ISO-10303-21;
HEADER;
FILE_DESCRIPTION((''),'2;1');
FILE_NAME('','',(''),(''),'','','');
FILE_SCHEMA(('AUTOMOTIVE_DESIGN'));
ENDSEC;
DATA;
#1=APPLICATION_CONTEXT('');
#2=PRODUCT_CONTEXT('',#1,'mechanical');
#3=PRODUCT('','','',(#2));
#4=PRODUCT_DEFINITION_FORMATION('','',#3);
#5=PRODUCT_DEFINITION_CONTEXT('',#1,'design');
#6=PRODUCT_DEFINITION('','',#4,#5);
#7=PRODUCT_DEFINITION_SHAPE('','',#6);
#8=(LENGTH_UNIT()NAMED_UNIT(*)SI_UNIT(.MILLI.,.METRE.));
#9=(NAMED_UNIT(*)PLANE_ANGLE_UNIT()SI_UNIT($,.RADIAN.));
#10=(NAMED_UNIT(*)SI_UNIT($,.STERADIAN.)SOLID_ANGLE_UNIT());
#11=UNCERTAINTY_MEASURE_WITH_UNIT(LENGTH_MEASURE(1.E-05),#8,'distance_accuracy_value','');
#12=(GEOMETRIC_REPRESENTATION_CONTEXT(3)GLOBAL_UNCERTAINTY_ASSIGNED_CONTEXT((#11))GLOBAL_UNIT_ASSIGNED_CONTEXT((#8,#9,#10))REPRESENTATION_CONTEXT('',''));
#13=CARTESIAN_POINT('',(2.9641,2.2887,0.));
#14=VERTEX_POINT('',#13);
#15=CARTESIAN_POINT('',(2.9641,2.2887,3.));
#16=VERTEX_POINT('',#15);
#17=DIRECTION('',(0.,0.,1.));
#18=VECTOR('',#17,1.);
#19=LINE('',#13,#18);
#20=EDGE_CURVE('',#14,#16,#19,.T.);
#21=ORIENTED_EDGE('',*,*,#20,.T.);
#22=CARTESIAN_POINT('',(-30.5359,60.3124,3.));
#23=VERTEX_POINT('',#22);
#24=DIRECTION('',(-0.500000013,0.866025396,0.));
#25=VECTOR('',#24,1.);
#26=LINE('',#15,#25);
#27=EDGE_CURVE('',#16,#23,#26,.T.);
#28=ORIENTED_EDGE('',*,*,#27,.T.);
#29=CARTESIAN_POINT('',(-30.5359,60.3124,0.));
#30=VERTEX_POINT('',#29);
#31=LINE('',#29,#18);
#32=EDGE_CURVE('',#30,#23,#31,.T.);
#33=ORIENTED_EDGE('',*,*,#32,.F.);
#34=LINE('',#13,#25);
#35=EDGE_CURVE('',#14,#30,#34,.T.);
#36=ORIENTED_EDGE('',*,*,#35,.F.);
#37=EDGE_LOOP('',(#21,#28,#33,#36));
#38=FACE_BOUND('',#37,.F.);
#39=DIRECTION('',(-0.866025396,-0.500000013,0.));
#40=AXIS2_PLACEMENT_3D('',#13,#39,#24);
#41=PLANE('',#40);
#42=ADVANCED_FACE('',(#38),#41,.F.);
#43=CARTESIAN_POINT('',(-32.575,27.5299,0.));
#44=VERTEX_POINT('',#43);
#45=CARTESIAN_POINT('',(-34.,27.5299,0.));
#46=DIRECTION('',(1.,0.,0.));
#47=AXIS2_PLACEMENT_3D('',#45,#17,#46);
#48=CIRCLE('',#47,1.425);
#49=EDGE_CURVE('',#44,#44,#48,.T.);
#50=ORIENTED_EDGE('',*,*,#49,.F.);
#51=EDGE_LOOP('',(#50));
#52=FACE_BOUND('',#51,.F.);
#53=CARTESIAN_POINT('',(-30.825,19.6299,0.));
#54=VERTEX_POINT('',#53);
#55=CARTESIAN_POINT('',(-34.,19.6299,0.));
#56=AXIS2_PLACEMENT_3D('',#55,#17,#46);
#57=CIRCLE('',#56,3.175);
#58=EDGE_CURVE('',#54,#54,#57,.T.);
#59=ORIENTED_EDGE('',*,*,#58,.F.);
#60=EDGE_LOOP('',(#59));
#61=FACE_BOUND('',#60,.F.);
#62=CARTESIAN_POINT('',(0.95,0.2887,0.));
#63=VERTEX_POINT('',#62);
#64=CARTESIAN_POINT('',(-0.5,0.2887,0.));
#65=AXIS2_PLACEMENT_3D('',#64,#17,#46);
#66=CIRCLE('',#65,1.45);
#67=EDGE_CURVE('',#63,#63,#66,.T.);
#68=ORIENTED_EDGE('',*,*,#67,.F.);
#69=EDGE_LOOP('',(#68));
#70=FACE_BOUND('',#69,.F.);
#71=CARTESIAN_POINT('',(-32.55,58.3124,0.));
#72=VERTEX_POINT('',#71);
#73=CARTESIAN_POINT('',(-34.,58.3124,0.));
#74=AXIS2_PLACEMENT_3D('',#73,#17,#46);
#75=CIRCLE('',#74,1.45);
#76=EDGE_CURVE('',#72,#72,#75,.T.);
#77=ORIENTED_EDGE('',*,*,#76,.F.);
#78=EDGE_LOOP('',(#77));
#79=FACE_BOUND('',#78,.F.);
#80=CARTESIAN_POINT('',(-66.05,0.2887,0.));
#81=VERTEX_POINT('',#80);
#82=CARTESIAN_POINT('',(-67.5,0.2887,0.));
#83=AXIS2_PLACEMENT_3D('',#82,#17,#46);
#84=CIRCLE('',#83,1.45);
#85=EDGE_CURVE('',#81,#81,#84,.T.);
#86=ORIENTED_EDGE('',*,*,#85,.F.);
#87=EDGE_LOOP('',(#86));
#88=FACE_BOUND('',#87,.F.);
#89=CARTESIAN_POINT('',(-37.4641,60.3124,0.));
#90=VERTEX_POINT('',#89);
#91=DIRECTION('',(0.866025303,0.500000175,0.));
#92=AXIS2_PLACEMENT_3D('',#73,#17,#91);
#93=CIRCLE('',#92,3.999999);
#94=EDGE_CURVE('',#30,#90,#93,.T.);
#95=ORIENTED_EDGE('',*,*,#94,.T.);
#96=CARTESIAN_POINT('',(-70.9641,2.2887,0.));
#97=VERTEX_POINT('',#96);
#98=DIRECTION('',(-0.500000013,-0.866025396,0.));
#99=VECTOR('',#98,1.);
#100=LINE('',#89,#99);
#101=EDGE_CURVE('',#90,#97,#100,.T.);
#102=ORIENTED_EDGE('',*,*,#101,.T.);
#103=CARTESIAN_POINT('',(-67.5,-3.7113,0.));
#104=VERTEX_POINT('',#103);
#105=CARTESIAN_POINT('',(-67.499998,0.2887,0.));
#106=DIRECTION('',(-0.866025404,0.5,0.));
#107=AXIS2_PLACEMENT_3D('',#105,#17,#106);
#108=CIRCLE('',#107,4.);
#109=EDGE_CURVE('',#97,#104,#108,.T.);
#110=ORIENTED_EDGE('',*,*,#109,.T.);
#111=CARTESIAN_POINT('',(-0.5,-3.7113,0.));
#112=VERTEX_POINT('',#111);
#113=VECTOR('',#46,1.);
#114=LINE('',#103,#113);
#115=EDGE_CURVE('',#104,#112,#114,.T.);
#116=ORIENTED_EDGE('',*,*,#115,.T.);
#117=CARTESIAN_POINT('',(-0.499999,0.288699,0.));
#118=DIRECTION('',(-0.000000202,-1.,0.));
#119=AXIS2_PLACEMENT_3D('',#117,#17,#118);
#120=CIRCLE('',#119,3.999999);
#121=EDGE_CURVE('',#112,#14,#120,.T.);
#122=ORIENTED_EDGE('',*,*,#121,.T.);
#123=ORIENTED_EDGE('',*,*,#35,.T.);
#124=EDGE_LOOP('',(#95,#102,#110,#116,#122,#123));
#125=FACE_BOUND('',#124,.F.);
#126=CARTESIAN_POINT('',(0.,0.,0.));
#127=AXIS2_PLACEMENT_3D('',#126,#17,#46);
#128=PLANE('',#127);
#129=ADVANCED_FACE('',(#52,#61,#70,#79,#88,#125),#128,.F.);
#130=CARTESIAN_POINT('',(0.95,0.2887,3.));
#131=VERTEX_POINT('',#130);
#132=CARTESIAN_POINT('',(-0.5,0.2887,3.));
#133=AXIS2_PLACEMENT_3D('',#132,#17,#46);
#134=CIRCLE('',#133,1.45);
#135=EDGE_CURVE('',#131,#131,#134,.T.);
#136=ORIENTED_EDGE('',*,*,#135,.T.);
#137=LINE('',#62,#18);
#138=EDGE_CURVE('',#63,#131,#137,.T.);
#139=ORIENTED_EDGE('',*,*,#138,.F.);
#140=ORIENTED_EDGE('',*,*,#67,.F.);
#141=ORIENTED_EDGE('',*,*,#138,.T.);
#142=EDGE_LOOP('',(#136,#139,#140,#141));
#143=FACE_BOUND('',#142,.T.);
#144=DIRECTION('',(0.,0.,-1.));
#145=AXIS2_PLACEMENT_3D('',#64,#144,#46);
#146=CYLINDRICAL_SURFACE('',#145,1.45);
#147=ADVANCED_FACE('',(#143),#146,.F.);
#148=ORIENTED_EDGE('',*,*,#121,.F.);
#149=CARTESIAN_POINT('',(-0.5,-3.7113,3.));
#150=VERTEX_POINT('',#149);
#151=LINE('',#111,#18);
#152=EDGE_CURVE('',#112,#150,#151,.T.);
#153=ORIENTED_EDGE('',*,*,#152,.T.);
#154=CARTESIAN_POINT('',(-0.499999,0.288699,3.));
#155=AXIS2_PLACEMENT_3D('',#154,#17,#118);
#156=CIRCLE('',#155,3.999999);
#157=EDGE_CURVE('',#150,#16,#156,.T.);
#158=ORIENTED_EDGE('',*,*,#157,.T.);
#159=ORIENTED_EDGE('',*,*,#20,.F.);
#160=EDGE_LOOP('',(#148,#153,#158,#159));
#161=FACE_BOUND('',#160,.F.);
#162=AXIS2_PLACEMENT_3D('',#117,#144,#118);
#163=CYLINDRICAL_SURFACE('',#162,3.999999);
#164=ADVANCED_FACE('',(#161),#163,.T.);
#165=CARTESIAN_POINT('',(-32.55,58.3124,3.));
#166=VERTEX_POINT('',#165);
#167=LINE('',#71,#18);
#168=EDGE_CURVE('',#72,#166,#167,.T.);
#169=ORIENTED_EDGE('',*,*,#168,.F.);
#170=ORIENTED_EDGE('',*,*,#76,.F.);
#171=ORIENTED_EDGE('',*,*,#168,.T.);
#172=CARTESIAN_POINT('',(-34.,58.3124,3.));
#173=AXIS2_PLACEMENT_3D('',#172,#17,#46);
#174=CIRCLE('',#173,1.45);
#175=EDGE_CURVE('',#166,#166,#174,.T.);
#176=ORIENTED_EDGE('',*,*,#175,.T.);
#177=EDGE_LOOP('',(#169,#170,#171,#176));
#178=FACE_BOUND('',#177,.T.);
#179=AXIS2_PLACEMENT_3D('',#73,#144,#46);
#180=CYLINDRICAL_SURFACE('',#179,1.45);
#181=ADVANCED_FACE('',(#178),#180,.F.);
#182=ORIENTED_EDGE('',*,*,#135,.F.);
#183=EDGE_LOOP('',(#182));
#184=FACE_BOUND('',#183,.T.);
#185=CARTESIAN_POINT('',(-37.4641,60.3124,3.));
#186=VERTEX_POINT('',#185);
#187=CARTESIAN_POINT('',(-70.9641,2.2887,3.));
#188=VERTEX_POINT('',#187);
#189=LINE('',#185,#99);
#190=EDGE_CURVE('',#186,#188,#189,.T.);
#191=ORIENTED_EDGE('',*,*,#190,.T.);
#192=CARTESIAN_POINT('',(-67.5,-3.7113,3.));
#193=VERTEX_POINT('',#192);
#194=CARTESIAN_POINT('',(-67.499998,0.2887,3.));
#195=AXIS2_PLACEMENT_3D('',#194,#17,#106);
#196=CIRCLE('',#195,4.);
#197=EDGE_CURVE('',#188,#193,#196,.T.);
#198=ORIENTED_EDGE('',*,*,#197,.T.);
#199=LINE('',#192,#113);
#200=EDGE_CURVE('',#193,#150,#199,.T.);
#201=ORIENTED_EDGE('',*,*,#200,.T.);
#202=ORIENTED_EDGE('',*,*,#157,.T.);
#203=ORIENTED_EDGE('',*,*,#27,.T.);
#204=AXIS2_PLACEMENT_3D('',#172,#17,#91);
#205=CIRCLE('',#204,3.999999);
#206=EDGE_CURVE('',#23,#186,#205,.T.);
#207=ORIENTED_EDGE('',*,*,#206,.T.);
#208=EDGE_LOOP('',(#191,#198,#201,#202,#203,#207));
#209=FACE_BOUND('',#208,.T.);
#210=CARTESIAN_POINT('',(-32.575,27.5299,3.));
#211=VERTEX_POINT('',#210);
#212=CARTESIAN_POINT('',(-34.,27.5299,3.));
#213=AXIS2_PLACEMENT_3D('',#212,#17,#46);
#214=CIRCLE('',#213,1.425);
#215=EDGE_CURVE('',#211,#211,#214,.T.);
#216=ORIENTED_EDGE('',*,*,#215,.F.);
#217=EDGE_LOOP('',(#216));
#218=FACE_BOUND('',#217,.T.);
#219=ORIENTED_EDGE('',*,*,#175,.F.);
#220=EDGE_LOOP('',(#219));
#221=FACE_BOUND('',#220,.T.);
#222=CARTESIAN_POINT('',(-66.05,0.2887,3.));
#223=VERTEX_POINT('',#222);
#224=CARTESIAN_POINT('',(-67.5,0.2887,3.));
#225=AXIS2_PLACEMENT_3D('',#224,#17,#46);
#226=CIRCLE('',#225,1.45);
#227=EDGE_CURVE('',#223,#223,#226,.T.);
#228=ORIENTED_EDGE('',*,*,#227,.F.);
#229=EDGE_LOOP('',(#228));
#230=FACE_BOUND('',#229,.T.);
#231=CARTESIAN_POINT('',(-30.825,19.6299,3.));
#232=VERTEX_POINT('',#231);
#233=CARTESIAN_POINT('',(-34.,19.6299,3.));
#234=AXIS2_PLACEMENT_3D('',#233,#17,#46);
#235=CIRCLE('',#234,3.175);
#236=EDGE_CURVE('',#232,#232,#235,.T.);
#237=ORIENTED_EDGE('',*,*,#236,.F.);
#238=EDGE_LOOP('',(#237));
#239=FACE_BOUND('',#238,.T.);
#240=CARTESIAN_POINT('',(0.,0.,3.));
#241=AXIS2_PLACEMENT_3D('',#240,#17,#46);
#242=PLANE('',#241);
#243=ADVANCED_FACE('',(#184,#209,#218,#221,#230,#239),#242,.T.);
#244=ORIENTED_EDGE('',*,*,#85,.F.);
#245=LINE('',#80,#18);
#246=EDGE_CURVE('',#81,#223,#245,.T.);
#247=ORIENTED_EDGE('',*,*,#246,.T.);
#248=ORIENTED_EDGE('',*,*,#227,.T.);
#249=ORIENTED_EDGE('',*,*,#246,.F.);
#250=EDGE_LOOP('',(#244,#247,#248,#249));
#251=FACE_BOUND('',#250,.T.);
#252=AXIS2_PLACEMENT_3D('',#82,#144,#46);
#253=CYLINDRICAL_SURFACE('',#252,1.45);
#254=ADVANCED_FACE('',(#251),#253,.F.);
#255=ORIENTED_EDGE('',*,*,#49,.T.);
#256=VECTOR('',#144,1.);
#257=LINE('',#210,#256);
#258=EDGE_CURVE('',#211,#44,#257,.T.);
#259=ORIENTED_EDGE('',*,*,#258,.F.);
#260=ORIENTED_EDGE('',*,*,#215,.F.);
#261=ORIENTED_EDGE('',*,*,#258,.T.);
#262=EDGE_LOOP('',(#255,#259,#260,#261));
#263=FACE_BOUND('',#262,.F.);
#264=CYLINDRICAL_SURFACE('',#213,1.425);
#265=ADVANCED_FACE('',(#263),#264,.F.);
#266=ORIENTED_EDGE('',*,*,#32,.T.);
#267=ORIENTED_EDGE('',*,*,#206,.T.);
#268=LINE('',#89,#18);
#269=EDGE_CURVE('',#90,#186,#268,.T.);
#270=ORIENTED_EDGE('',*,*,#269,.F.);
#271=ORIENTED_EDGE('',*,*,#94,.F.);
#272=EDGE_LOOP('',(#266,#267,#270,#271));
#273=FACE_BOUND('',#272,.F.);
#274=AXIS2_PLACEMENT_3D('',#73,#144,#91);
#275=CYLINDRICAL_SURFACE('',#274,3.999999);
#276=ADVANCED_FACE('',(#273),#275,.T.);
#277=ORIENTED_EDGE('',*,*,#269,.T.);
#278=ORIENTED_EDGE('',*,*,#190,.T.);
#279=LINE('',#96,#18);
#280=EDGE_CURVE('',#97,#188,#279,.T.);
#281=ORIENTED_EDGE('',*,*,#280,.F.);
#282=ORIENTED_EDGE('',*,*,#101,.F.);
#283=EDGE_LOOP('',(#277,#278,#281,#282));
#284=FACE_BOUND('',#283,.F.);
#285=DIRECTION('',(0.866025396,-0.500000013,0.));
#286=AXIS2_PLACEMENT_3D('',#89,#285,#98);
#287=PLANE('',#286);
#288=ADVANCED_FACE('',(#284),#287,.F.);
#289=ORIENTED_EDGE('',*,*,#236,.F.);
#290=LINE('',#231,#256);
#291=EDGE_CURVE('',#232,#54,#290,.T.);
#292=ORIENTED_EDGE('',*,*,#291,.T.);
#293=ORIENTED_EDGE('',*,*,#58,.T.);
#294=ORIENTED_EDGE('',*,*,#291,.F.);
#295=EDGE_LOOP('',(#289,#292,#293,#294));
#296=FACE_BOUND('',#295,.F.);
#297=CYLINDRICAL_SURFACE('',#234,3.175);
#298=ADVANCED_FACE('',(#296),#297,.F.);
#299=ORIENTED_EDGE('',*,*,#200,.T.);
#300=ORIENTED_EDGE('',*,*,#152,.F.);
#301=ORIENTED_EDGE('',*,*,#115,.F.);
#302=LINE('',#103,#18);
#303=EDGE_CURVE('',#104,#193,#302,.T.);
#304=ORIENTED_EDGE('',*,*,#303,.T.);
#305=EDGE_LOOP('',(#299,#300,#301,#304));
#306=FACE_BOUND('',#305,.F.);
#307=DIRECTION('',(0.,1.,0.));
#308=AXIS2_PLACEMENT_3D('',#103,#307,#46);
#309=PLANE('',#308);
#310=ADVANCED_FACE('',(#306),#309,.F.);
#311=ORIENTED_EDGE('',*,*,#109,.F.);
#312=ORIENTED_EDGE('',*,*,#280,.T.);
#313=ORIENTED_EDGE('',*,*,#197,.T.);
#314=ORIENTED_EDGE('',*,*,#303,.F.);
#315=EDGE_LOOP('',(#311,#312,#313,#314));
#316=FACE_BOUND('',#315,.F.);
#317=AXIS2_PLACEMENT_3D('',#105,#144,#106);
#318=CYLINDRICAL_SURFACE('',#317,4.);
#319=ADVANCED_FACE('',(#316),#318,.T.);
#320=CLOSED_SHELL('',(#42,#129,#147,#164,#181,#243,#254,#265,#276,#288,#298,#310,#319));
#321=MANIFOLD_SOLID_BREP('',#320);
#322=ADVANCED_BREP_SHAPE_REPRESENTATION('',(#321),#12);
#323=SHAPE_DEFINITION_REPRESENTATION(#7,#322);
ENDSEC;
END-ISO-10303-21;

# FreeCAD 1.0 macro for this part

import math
import FreeCAD as App
import Part
import Sketcher
Q = App.Units.Quantity

doc = App.newDocument("Part")
body = doc.addObject("PartDesign::Body", "Body")

# Sketch on XY plane
sketch1 = body.newObject("Sketcher::SketchObject", "Sketch")
sketch1.AttachmentSupport = (doc.getObject("XY_Plane"), [""])
sketch1.MapMode = "FlatFace"
sketch1.addGeometry([
    Part.ArcOfCircle(Part.Circle(App.Vector(-0.5, 0.3, 0), App.Vector(0, 0, 1), 4), math.radians(-90), math.radians(30)),  # 0
    Part.LineSegment(App.Vector(3, 2.3, 0), App.Vector(-30.5, 60.3, 0)),  # 1
    Part.ArcOfCircle(Part.Circle(App.Vector(-34, 58.3, 0), App.Vector(0, 0, 1), 4), math.radians(30), math.radians(150)),  # 2
    Part.LineSegment(App.Vector(-37.5, 60.3, 0), App.Vector(-71, 2.3, 0)),  # 3
    Part.ArcOfCircle(Part.Circle(App.Vector(-67.5, 0.3, 0), App.Vector(0, 0, 1), 4), math.radians(150), math.radians(270)),  # 4
    Part.LineSegment(App.Vector(-67.5, -3.7, 0), App.Vector(-0.5, -3.7, 0)),  # 5
    Part.Circle(App.Vector(-67.5, 0.3, 0), App.Vector(0, 0, 1), 1.4),  # 6
    Part.Circle(App.Vector(-0.5, 0.3, 0), App.Vector(0, 0, 1), 1.4),  # 7
    Part.Circle(App.Vector(-34, 58.3, 0), App.Vector(0, 0, 1), 1.4),  # 8
], False)
sketch1.addConstraint([
    Sketcher.Constraint("Tangent", 0, 2, 1, 1),
    Sketcher.Constraint("Tangent", 1, 2, 2, 1),
    Sketcher.Constraint("Tangent", 2, 2, 3, 1),
    Sketcher.Constraint("Tangent", 3, 2, 4, 1),
    Sketcher.Constraint("Tangent", 4, 2, 5, 1),
    Sketcher.Constraint("Tangent", 5, 2, 0, 1),
    Sketcher.Constraint("Horizontal", 5),
    Sketcher.Constraint("Coincident", 6, 3, 4, 3),
    Sketcher.Constraint("Coincident", 7, 3, 0, 3),
    Sketcher.Constraint("Coincident", 8, 3, 2, 3),
    Sketcher.Constraint("Equal", 0, 2),
    Sketcher.Constraint("Equal", 2, 4),
    Sketcher.Constraint("Equal", 6, 7),
    Sketcher.Constraint("Equal", 7, 8),
    Sketcher.Constraint("Horizontal", 1, 2, 2, 2),
    Sketcher.Constraint("Diameter", 6, 2.9),
    Sketcher.Constraint("Radius", 0, 4.0),
    Sketcher.Constraint("DistanceX", 5, 1, 5, 2, 67.0),
    Sketcher.Constraint("Angle", 1, Q("120 deg")),
    Sketcher.Constraint("DistanceX", 2, 3, -1, 1, 34.0),
    Sketcher.Constraint("DistanceY", -1, 1, 0, 3, 0.2887),
])
pad1 = body.newObject("PartDesign::Pad", "Pad")
pad1.Profile = sketch1
pad1.Length = 3

# Sketch on XY plane
sketch2 = body.newObject("Sketcher::SketchObject", "Sketch001")
sketch2.AttachmentSupport = (doc.getObject("XY_Plane"), [""])
sketch2.MapMode = "FlatFace"
sketch2.AttachmentOffset = App.Placement(App.Vector(0, 0, 3), App.Rotation())
sketch2.addGeometry([
    Part.Circle(App.Vector(-34, 19.6, 0), App.Vector(0, 0, 1), 3.2),
    Part.Circle(App.Vector(-34, 27.5, 0), App.Vector(0, 0, 1), 1.4),
], False)
sketch2.addConstraint([
    Sketcher.Constraint("Vertical", 0, 3, 1, 3),
    Sketcher.Constraint("Diameter", 0, 6.35),
    Sketcher.Constraint("Diameter", 1, 2.85),
    Sketcher.Constraint("DistanceY", 0, 3, 1, 3, 7.9),
    Sketcher.Constraint("DistanceX", 0, 3, -1, 1, 34.0),
    Sketcher.Constraint("DistanceY", -1, 1, 0, 3, 19.63),
])
pocket1 = body.newObject("PartDesign::Pocket", "Pocket")
pocket1.Profile = sketch2
pocket1.Type = "ThroughAll"

doc.recompute()
